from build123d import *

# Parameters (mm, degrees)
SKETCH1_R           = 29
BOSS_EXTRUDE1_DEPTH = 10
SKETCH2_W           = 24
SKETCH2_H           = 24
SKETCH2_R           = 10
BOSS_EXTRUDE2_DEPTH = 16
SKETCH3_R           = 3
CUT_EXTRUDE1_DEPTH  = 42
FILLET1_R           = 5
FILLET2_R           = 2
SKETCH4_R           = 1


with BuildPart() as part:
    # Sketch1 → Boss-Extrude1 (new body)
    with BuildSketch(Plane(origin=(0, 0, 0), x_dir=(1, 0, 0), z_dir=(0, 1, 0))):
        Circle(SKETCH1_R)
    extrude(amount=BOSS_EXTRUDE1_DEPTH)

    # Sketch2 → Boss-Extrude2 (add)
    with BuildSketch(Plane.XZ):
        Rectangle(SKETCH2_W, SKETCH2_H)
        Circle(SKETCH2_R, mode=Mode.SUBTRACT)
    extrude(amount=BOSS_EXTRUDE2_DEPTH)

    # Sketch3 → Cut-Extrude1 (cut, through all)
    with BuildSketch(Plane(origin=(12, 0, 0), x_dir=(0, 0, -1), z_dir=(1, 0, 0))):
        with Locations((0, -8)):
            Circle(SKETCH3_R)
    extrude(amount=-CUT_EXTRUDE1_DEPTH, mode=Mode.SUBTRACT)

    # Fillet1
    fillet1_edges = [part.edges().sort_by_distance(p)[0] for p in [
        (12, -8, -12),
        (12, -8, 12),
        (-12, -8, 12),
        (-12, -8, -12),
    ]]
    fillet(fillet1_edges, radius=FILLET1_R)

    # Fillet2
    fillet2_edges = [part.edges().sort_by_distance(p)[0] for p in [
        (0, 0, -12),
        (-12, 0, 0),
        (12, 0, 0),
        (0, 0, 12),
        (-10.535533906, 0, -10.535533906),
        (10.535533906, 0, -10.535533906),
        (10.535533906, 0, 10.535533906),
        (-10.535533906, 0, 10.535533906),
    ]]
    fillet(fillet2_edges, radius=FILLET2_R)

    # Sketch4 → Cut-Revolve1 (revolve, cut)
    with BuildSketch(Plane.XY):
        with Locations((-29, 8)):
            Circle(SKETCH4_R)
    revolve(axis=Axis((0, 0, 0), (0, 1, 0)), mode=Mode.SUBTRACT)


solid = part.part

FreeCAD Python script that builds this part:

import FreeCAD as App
import Part
import Sketcher
Q = App.Units.Quantity


def edges_at(feature, points):
    """Names of the edges that pass closest to the given points."""
    edges = feature.Shape.Edges
    near = lambda p: min(range(len(edges)), key=lambda i: edges[i].distToShape(Part.Vertex(*p))[0])
    return sorted({f"Edge{near(p) + 1}" for p in points})


def add_polygon(sketch, points):
    """Adds a closed chain of lines whose ends are joined by coincident constraints."""
    first, n = sketch.GeometryCount, len(points)
    for a, b in zip(points, points[1:] + points[:1]):
        sketch.addGeometry(Part.LineSegment(App.Vector(*a, 0), App.Vector(*b, 0)), False)
    for i in range(n):
        sketch.addConstraint(Sketcher.Constraint("Coincident", first + i, 2, first + (i + 1) % n, 1))

doc = App.newDocument("Part")
body = doc.addObject("PartDesign::Body", "Body")

# Sketch on XZ plane
sketch1 = body.newObject("Sketcher::SketchObject", "Sketch")
sketch1.AttachmentSupport = (doc.getObject("XZ_Plane"), [""])
sketch1.MapMode = "FlatFace"
sketch1.addGeometry(Part.Circle(App.Vector(0, 0, 0), App.Vector(0, 0, 1), 29), False)
sketch1.addConstraint([
    Sketcher.Constraint("Coincident", 0, 3, -1, 1),
    Sketcher.Constraint("Diameter", 0, Q("58 mm")),
])
pad1 = body.newObject("PartDesign::Pad", "Pad")
pad1.Profile = sketch1
pad1.Length = 10
pad1.Reversed = True

# Sketch on XZ plane
sketch2 = body.newObject("Sketcher::SketchObject", "Sketch001")
sketch2.AttachmentSupport = (doc.getObject("XZ_Plane"), [""])
sketch2.MapMode = "FlatFace"
add_polygon(sketch2, [(-12, 12), (-12, -12), (12, -12), (12, 12)])  # lines 0-3
sketch2.addGeometry(Part.Circle(App.Vector(0, 0, 0), App.Vector(0, 0, 1), 10), False)  # 4
sketch2.addConstraint([
    Sketcher.Constraint("Vertical", 0),
    Sketcher.Constraint("Horizontal", 1),
    Sketcher.Constraint("Vertical", 2),
    Sketcher.Constraint("Horizontal", 3),
    Sketcher.Constraint("Coincident", 4, 3, -1, 1),
    Sketcher.Constraint("Symmetric", 0, 2, 2, 2, -1, 1),
    Sketcher.Constraint("Equal", 3, 0),
    Sketcher.Constraint("Diameter", 4, Q("20 mm")),
    Sketcher.Constraint("DistanceX", 1, 1, 1, 2, Q("24 mm")),
])
pad2 = body.newObject("PartDesign::Pad", "Pad001")
pad2.Profile = sketch2
pad2.Length = 16

# Sketch on YZ plane
sketch3 = body.newObject("Sketcher::SketchObject", "Sketch002")
sketch3.AttachmentSupport = (doc.getObject("YZ_Plane"), [""])
sketch3.MapMode = "FlatFace"
sketch3.AttachmentOffset = App.Placement(App.Vector(0, 0, 12), App.Rotation())
sketch3.addGeometry(Part.Circle(App.Vector(-8, 0, 0), App.Vector(0, 0, 1), 3), False)
sketch3.addConstraint([
    Sketcher.Constraint("PointOnObject", 0, 3, -1),
    Sketcher.Constraint("Diameter", 0, Q("6 mm")),
    Sketcher.Constraint("DistanceX", 0, 3, -1, 1, Q("8 mm")),
])
pocket1 = body.newObject("PartDesign::Pocket", "Pocket")
pocket1.Profile = sketch3
pocket1.Type = "ThroughAll"
doc.recompute()

fillet = body.newObject("PartDesign::Fillet", "Fillet")
fillet.Base = (pocket1, edges_at(pocket1, [
    (12, -8, -12),
    (12, -8, 12),
    (-12, -8, 12),
    (-12, -8, -12),
]))
fillet.Radius = 5
doc.recompute()

fillet2 = body.newObject("PartDesign::Fillet", "Fillet001")
fillet2.Base = (fillet, edges_at(fillet, [
    (0, 0, -12),
    (-12, 0, 0),
    (12, 0, 0),
    (0, 0, 12),
    (-10.536, 0, -10.536),
    (10.536, 0, -10.536),
    (10.536, 0, 10.536),
    (-10.536, 0, 10.536),
]))
fillet2.Radius = 2

# Sketch on XY plane
sketch4 = body.newObject("Sketcher::SketchObject", "Sketch003")
sketch4.AttachmentSupport = (doc.getObject("XY_Plane"), [""])
sketch4.MapMode = "FlatFace"
sketch4.addGeometry(Part.Circle(App.Vector(-29, 8, 0), App.Vector(0, 0, 1), 1), False)
sketch4.addConstraint([
    Sketcher.Constraint("Diameter", 0, Q("2 mm")),
    Sketcher.Constraint("DistanceX", 0, 3, -1, 1, Q("29 mm")),
    Sketcher.Constraint("DistanceY", -1, 1, 0, 3, Q("8 mm")),
])
groove = body.newObject("PartDesign::Groove", "Groove")
groove.Profile = sketch4
groove.ReferenceAxis = (sketch4, ["V_Axis"])
groove.Angle = 360

doc.recompute()
